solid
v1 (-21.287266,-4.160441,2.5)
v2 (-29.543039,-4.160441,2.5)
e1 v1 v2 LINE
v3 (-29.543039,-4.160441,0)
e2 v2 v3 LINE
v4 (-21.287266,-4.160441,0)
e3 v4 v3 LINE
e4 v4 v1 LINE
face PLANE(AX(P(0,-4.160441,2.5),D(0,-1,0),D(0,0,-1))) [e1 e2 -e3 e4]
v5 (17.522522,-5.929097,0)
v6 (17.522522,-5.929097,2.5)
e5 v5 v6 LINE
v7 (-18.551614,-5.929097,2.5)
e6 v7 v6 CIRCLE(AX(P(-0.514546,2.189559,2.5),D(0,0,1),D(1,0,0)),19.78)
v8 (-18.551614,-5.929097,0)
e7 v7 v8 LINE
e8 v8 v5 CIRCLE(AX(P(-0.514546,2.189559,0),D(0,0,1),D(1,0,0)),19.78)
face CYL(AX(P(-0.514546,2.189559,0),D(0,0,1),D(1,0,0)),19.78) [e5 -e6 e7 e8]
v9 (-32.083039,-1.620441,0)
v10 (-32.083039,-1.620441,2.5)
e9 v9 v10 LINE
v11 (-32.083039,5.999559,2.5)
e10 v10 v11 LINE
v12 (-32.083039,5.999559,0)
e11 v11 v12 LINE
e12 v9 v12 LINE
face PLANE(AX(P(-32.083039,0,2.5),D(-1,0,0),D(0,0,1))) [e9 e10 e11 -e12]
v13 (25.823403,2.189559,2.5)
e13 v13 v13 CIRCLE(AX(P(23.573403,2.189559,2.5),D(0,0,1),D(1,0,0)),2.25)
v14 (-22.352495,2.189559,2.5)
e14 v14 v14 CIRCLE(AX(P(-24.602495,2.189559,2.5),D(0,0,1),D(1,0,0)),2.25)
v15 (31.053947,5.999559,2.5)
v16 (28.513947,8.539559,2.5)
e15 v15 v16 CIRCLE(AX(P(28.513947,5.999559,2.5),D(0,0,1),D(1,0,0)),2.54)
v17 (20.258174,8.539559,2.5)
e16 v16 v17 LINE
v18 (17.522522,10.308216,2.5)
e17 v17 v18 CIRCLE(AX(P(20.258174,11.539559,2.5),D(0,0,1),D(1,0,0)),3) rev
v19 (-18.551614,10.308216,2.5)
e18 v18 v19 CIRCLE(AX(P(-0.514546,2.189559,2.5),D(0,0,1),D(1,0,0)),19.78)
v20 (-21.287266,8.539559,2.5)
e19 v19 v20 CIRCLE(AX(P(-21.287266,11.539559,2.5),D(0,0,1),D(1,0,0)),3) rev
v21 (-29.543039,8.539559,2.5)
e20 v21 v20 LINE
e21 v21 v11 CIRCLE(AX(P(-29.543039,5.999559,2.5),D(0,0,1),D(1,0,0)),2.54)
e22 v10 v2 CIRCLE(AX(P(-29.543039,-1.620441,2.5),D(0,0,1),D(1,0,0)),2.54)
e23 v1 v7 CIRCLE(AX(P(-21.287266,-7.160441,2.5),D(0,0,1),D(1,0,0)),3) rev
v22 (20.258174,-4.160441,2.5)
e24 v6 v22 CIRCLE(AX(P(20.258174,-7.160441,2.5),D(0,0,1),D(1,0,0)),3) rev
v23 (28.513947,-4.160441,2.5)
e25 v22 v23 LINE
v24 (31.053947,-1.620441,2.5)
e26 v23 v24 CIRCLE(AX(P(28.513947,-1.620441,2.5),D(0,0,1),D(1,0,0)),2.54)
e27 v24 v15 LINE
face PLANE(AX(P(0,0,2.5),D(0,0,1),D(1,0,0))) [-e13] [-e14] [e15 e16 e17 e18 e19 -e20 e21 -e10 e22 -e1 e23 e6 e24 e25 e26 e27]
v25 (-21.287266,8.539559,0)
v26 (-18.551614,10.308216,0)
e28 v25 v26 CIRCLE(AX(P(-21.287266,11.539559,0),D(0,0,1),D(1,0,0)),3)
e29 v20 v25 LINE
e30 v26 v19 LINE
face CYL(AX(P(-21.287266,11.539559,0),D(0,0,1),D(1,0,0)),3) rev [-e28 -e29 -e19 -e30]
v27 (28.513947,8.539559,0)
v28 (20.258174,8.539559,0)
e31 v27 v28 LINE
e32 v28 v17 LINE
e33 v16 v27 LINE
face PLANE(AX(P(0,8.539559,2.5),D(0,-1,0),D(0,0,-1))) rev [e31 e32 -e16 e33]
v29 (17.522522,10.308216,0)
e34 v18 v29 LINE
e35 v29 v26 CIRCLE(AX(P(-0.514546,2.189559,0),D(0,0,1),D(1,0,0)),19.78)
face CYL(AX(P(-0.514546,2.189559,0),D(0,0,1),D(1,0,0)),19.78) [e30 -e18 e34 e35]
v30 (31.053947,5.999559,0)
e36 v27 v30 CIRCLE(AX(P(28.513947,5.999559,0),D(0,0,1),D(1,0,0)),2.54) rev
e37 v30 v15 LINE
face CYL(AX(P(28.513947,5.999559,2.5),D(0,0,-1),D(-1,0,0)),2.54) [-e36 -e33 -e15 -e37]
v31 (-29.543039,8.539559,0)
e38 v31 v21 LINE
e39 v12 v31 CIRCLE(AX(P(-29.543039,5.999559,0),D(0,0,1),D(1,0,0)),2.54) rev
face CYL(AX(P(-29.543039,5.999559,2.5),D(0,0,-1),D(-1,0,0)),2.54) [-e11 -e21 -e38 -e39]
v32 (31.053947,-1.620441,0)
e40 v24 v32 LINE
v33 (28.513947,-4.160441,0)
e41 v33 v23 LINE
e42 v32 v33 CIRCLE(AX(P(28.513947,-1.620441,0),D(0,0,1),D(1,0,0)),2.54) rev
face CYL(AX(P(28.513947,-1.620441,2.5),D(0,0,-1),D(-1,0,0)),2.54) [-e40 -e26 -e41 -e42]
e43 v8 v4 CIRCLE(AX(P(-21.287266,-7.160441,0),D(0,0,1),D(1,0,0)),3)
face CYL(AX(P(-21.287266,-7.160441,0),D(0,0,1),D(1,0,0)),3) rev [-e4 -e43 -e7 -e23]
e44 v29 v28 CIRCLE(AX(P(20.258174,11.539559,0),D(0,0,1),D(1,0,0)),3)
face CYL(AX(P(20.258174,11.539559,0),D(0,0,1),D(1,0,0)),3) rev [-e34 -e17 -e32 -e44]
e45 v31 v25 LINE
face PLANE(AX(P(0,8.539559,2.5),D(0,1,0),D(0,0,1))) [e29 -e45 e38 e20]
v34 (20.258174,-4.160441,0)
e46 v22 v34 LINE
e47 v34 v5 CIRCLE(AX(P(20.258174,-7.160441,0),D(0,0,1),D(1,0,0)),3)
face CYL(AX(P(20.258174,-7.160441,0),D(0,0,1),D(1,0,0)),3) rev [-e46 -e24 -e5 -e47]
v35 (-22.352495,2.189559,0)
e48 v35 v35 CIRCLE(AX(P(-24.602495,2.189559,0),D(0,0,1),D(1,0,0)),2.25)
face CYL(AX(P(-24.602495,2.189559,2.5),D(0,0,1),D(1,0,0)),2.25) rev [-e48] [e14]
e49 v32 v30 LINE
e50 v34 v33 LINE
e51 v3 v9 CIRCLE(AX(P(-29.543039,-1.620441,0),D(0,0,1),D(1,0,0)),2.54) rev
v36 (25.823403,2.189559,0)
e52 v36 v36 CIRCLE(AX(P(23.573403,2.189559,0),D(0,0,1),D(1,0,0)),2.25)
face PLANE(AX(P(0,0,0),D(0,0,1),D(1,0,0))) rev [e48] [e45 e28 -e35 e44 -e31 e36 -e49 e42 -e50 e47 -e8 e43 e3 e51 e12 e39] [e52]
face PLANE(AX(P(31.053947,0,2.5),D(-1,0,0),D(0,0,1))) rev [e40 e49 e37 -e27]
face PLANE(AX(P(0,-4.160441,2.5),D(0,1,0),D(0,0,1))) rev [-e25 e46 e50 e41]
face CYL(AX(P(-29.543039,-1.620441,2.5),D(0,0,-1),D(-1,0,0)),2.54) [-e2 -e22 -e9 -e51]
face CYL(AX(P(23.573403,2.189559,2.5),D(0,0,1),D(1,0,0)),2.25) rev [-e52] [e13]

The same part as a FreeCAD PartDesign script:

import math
import FreeCAD as App
import Part
import Sketcher
from FreeCAD import Vector
Q = App.Units.Quantity


def edges_at(feature, points):
    """Names of the edges that pass closest to the given points."""
    edges = feature.Shape.Edges
    near = lambda p: min(range(len(edges)), key=lambda i: edges[i].distToShape(Part.Vertex(*p))[0])
    return sorted({f"Edge{near(p) + 1}" for p in points})

doc = App.newDocument("Part")
body = doc.addObject("PartDesign::Body", "Body")

sketch1 = body.newObject("Sketcher::SketchObject", "Sketch")
sketch1.AttachmentSupport = (doc.getObject("XY_Plane"), [""])
sketch1.MapMode = "FlatFace"
sketch1.addGeometry([
    Part.LineSegment(Vector(-32, -4, 0), Vector(-17, -4, 0)),
    Part.ArcOfCircle(Part.Circle(Vector(-1, 2, 0), Vector(0, 0, 1), 18), math.radians(-159), math.radians(-21)),
    Part.LineSegment(Vector(16, -4, 0), Vector(31, -4, 0)),
    Part.LineSegment(Vector(31, -4, 0), Vector(31, 9, 0)),
    Part.LineSegment(Vector(31, 9, 0), Vector(16, 9, 0)),
    Part.ArcOfCircle(Part.Circle(Vector(-1, 2, 0), Vector(0, 0, 1), 18), math.radians(21), math.radians(159)),
    Part.LineSegment(Vector(-17, 9, 0), Vector(-32, 9, 0)),
    Part.LineSegment(Vector(-32, 9, 0), Vector(-32, -4, 0)),
], False)
sketch1.addConstraint([
    Sketcher.Constraint("Coincident", 0, 2, 1, 1),
    Sketcher.Constraint("Coincident", 1, 2, 2, 1),
    Sketcher.Constraint("Coincident", 2, 2, 3, 1),
    Sketcher.Constraint("Coincident", 3, 2, 4, 1),
    Sketcher.Constraint("Coincident", 4, 2, 5, 1),
    Sketcher.Constraint("Coincident", 5, 2, 6, 1),
    Sketcher.Constraint("Coincident", 6, 2, 7, 1),
    Sketcher.Constraint("Coincident", 7, 2, 0, 1),
    Sketcher.Constraint("Horizontal", 0),
    Sketcher.Constraint("Horizontal", 2),
    Sketcher.Constraint("Vertical", 3),
    Sketcher.Constraint("Horizontal", 4),
    Sketcher.Constraint("Horizontal", 6),
    Sketcher.Constraint("Vertical", 7),
    Sketcher.Constraint("Coincident", 5, 3, 1, 3),
    Sketcher.Constraint("Equal", 1, 5),
    Sketcher.Constraint("Horizontal", 0, 2, 1, 2),
    Sketcher.Constraint("Horizontal", 4, 2, 5, 2),
    Sketcher.Constraint("Vertical", 1, 2, 4, 2),
    Sketcher.Constraint("Equal", 0, 2),
    Sketcher.Constraint("Radius", 1, Q("0.7 in")),
    Sketcher.Constraint("DistanceY", 3, 1, 3, 2, Q("0.5 in")),
    Sketcher.Constraint("DistanceX", 0, 1, 0, 2, Q("14.961088 mm")),
    Sketcher.Constraint("DistanceY", -1, 1, 1, 3, Q("2.189559 mm")),
    Sketcher.Constraint("DistanceX", 0, 2, -1, 1, Q("17.121951 mm")),
])
pad1 = body.newObject("PartDesign::Pad", "Pad")
pad1.Profile = sketch1
pad1.Length = 2.5
doc.recompute()

fillet = body.newObject("PartDesign::Fillet", "Fillet")
fillet.Base = (pad1, edges_at(pad1, [
    (-32.083, -4.16, 1.25),
    (-32.083, 8.54, 1.25),
    (-17.122, 8.54, 1.25),
    (16.093, 8.54, 1.25),
    (31.054, 8.54, 1.25),
    (31.054, -4.16, 1.25),
    (16.093, -4.16, 1.25),
    (-17.122, -4.16, 1.25),
]))
fillet.Radius = Q("0.1 in")

sketch2 = body.newObject("Sketcher::SketchObject", "Sketch001")
sketch2.AttachmentSupport = (doc.getObject("XY_Plane"), [""])
sketch2.MapMode = "FlatFace"
sketch2.AttachmentOffset = App.Placement(Vector(0, 0, 2.5), App.Rotation())
sketch2.addGeometry([
    Part.Circle(Vector(-24.6, 2.2, 0), Vector(0, 0, 1), 2.2),
    Part.Circle(Vector(23.6, 2.2, 0), Vector(0, 0, 1), 2.2),
], False)
sketch2.addConstraint([
    Sketcher.Constraint("Equal", 0, 1),
    Sketcher.Constraint("Horizontal", 0, 3, 1, 3),
    Sketcher.Constraint("Diameter", 0, Q("4.5 mm")),
    Sketcher.Constraint("DistanceX", 0, 3, 1, 3, Q("48.175898 mm")),
    Sketcher.Constraint("DistanceY", -1, 1, 0, 3, Q("2.189559 mm")),
    Sketcher.Constraint("DistanceX", 0, 3, -1, 1, Q("24.602495 mm")),
])
doc.recompute()
hole = body.newObject("PartDesign::Hole", "Hole")
hole.Profile = sketch2
hole.ThreadType = "None"
hole.Diameter = 4.5
hole.DepthType = "ThroughAll"
body2 = doc.addObject("PartDesign::Body", "Body001")

sketch3 = body2.newObject("Sketcher::SketchObject", "Sketch002")
sketch3.AttachmentSupport = (doc.getObject("XY_Plane001"), [""])
sketch3.MapMode = "FlatFace"
sketch3.AttachmentOffset = App.Placement(Vector(0, 0, 2.5), App.Rotation())
sketch3.addGeometry([
    Part.ArcOfCircle(Part.Circle(Vector(-0.51, 2.19, 0), Vector(0, 0, 1), 19.78), math.radians(-161), math.radians(-19)),
    Part.LineSegment(Vector(18.22, -4.16, 0), Vector(17.76, -4.16, 0)),
    Part.ArcOfCircle(Part.Circle(Vector(17.76, -6.7, 0), Vector(0, 0, 1), 2.54), math.radians(90), math.radians(154)),
    Part.ArcOfCircle(Part.Circle(Vector(-0.51, 2.19, 0), Vector(0, 0, 1), 17.78), math.radians(-154), math.radians(-26)),
    Part.ArcOfCircle(Part.Circle(Vector(-18.79, -6.7, 0), Vector(0, 0, 1), 2.54), math.radians(26), math.radians(90)),
    Part.LineSegment(Vector(-18.79, -4.16, 0), Vector(-19.25, -4.16, 0)),
], False)
sketch3.addConstraint([
    Sketcher.Constraint("Coincident", 0, 2, 1, 1),
    Sketcher.Constraint("Tangent", 1, 2, 2, 1),
    Sketcher.Constraint("Tangent", 2, 2, 3, 2),
    Sketcher.Constraint("Tangent", 3, 1, 4, 1),
    Sketcher.Constraint("Tangent", 4, 2, 5, 1),
    Sketcher.Constraint("Coincident", 5, 2, 0, 1),
    Sketcher.Constraint("Horizontal", 1),
    Sketcher.Constraint("Horizontal", 5),
    Sketcher.Constraint("Coincident", 3, 3, 0, 3),
    Sketcher.Constraint("Equal", 2, 4),
    Sketcher.Constraint("Horizontal", 2, 3, 4, 3),
    Sketcher.Constraint("Radius", 2, Q("0.1 in")),
    Sketcher.Constraint("Radius", 3, Q("0.7 in")),
    Sketcher.Constraint("Radius", 0, Q("19.78 mm")),
    Sketcher.Constraint("DistanceY", 2, 3, 0, 3, Q("0.35 in")),
    Sketcher.Constraint("DistanceY", -1, 1, 0, 3, Q("2.189559 mm")),
    Sketcher.Constraint("DistanceX", -1, 1, 0, 2, Q("18.218471 mm")),
])
pad2 = body2.newObject("PartDesign::Pad", "Pad001")
pad2.Profile = sketch3
pad2.Length = 2.5
pad2.Reversed = True
body3 = doc.addObject("PartDesign::Body", "Body002")

sketch4 = body3.newObject("Sketcher::SketchObject", "Sketch003")
sketch4.AttachmentSupport = (doc.getObject("XY_Plane002"), [""])
sketch4.MapMode = "FlatFace"
sketch4.AttachmentOffset = App.Placement(Vector(0, 0, 2.5), App.Rotation())
sketch4.addGeometry([
    Part.LineSegment(Vector(17.76, 8.54, 0), Vector(18.22, 8.54, 0)),
    Part.ArcOfCircle(Part.Circle(Vector(-0.51, 2.19, 0), Vector(0, 0, 1), 19.78), math.radians(19), math.radians(161)),
    Part.LineSegment(Vector(-19.25, 8.54, 0), Vector(-18.79, 8.54, 0)),
    Part.ArcOfCircle(Part.Circle(Vector(-18.79, 11.08, 0), Vector(0, 0, 1), 2.54), math.radians(-90), math.radians(-26)),
    Part.ArcOfCircle(Part.Circle(Vector(-0.51, 2.19, 0), Vector(0, 0, 1), 17.78), math.radians(26), math.radians(154)),
    Part.ArcOfCircle(Part.Circle(Vector(17.76, 11.08, 0), Vector(0, 0, 1), 2.54), math.radians(-154), math.radians(-90)),
], False)
sketch4.addConstraint([
    Sketcher.Constraint("Coincident", 0, 2, 1, 1),
    Sketcher.Constraint("Coincident", 1, 2, 2, 1),
    Sketcher.Constraint("Tangent", 2, 2, 3, 1),
    Sketcher.Constraint("Tangent", 3, 2, 4, 2),
    Sketcher.Constraint("Tangent", 4, 1, 5, 1),
    Sketcher.Constraint("Tangent", 5, 2, 0, 1),
    Sketcher.Constraint("Horizontal", 0),
    Sketcher.Constraint("Horizontal", 2),
    Sketcher.Constraint("Coincident", 4, 3, 1, 3),
    Sketcher.Constraint("Equal", 3, 5),
    Sketcher.Constraint("Horizontal", 3, 3, 5, 3),
    Sketcher.Constraint("Radius", 3, Q("0.1 in")),
    Sketcher.Constraint("Radius", 4, Q("0.7 in")),
    Sketcher.Constraint("Radius", 1, Q("19.78 mm")),
    Sketcher.Constraint("DistanceY", 1, 3, 3, 3, Q("0.35 in")),
    Sketcher.Constraint("DistanceY", -1, 1, 1, 3, Q("2.189559 mm")),
    Sketcher.Constraint("DistanceX", -1, 1, 0, 2, Q("18.218471 mm")),
])
pad3 = body3.newObject("PartDesign::Pad", "Pad002")
pad3.Profile = sketch4
pad3.Length = 2.5
pad3.Reversed = True
doc.recompute()

boolean = body.newObject("PartDesign::Boolean", "Boolean")
boolean.Type = "Fuse"
boolean.addObjects([body3])
doc.recompute()

boolean2 = body.newObject("PartDesign::Boolean", "Boolean001")
boolean2.Type = "Fuse"
boolean2.addObjects([body2])
doc.recompute()

fillet2 = body.newObject("PartDesign::Fillet", "Fillet001")
fillet2.Base = (boolean2, edges_at(boolean2, [
    (-19.248, -4.16, 1.25),
    (18.218, -4.16, 1.25),
    (18.218, 8.54, 1.25),
    (-19.248, 8.54, 1.25),
]))
fillet2.Radius = 3

doc.recompute()
